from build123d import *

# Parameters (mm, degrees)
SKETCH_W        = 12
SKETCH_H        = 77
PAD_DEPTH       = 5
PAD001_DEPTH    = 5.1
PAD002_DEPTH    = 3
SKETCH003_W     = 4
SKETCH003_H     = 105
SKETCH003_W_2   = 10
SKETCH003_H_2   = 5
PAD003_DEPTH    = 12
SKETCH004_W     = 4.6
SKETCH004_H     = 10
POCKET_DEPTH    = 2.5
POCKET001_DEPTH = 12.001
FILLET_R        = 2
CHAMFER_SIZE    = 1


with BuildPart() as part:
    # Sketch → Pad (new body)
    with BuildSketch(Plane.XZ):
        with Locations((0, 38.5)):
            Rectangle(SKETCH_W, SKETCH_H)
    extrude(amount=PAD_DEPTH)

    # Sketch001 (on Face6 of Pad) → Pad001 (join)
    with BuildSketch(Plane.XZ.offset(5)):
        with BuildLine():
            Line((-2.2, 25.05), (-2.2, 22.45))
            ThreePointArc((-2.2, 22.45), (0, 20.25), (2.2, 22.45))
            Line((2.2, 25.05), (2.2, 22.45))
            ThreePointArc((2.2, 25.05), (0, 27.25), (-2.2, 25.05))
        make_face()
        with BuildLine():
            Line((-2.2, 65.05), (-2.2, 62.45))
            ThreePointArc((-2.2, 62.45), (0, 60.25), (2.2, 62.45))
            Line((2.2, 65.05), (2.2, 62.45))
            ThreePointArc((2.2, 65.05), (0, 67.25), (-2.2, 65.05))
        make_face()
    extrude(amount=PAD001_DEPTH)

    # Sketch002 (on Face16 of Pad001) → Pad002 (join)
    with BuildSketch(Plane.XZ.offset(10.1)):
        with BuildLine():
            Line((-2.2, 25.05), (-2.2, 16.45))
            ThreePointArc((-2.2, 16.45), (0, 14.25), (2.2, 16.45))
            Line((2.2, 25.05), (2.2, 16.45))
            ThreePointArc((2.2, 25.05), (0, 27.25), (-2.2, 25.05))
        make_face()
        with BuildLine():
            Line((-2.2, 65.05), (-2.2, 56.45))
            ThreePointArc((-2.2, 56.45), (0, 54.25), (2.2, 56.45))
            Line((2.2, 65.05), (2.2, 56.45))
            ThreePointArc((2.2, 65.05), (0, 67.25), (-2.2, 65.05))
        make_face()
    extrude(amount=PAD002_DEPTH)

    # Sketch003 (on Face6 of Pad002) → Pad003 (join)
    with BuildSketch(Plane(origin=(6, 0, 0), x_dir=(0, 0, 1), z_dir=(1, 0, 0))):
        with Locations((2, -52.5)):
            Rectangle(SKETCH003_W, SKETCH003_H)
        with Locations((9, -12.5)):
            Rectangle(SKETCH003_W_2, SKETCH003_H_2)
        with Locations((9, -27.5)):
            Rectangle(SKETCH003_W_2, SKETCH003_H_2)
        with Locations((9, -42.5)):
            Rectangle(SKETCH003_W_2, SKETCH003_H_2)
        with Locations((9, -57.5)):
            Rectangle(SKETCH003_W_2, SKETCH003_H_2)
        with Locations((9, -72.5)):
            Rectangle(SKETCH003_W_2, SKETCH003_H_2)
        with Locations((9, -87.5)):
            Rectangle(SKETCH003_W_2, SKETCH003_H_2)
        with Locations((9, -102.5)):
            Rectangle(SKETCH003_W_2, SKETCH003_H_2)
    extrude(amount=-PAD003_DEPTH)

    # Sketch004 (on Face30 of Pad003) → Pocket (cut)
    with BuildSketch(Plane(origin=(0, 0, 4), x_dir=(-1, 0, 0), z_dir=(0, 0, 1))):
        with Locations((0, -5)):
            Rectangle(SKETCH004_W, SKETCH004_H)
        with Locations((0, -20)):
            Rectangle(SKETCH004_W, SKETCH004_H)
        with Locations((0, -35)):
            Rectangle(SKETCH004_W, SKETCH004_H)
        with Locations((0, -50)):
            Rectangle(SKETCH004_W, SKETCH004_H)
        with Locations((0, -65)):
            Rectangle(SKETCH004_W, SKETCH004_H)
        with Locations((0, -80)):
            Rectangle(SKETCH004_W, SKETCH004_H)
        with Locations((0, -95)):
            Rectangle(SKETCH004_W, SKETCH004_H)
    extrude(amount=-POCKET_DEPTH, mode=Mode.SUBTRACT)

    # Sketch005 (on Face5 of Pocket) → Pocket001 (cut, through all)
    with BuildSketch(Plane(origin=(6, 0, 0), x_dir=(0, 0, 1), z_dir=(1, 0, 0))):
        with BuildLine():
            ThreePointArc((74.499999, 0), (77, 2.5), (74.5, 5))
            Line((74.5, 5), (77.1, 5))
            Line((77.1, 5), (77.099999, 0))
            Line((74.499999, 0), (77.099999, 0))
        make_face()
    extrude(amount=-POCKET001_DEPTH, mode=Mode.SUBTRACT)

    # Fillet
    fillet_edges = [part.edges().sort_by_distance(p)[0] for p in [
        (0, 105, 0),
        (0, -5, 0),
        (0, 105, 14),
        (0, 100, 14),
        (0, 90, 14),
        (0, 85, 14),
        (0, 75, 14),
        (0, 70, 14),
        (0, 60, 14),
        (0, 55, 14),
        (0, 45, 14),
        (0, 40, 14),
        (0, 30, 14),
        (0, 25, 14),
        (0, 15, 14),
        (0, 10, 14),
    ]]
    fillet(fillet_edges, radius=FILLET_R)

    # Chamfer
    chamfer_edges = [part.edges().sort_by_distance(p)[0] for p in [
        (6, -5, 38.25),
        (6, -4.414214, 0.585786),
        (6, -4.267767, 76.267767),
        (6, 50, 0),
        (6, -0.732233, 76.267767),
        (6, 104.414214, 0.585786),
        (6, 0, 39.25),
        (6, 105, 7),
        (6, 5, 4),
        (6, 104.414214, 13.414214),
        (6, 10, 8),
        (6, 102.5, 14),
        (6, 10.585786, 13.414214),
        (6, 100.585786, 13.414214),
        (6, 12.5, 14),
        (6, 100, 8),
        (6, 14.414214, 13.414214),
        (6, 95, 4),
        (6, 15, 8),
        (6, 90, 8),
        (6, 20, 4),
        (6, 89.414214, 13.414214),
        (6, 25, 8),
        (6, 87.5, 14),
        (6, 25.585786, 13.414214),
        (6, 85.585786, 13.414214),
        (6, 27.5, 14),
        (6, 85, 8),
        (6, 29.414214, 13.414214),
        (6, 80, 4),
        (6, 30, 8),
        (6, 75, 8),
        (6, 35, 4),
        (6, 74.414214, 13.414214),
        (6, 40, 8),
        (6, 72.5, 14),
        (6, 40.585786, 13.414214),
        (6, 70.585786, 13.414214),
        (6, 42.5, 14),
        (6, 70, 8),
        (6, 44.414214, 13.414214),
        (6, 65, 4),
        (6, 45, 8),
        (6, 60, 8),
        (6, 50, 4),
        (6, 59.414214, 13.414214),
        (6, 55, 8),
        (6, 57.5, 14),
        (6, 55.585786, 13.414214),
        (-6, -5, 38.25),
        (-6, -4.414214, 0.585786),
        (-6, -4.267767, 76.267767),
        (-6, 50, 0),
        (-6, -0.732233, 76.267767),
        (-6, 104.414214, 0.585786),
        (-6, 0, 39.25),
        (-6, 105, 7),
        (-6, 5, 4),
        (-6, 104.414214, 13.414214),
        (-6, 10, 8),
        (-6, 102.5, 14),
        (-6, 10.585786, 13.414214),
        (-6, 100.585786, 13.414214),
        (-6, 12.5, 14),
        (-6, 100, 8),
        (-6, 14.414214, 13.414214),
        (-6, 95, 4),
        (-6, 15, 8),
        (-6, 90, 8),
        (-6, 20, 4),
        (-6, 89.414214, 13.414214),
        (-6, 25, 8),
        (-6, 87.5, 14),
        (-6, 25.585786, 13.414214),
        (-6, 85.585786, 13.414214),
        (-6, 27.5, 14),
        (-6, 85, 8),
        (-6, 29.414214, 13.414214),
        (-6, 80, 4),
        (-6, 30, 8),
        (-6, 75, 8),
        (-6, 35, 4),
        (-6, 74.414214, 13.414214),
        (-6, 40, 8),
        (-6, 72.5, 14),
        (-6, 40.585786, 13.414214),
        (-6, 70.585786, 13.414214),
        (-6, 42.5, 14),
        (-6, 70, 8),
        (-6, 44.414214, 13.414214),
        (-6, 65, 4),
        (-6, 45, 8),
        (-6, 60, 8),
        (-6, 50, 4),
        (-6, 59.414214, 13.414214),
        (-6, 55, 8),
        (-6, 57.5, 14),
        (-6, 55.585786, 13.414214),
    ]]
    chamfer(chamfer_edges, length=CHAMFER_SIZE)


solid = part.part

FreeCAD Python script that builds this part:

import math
import FreeCAD as App
import Part
import Sketcher

V = App.Vector
Q = App.Units.Quantity


def edges_at(feature, points):
    """Names of the edges that pass closest to the given points."""
    edges = feature.Shape.Edges
    near = lambda p: min(range(len(edges)), key=lambda i: edges[i].distToShape(Part.Vertex(*p))[0])
    return sorted({f"Edge{near(p) + 1}" for p in points})

doc = App.newDocument("Part")
body = doc.addObject("PartDesign::Body", "Body")

# Sketch on XZ plane
sketch1 = body.newObject("Sketcher::SketchObject", "Sketch")
sketch1.AttachmentSupport = (doc.getObject("XZ_Plane"), [""])
sketch1.MapMode = "FlatFace"
sketch1.addGeometry([
    Part.LineSegment(V(-6, 77, 0), V(-6, 0, 0)),
    Part.LineSegment(V(-6, 0, 0), V(6, 0, 0)),
    Part.LineSegment(V(6, 0, 0), V(6, 77, 0)),
    Part.LineSegment(V(6, 77, 0), V(-6, 77, 0)),
], False)
sketch1.addConstraint([
    Sketcher.Constraint("Coincident", 0, 2, 1, 1),
    Sketcher.Constraint("Coincident", 1, 2, 2, 1),
    Sketcher.Constraint("Coincident", 2, 2, 3, 1),
    Sketcher.Constraint("Coincident", 3, 2, 0, 1),
    Sketcher.Constraint("Vertical", 0),
    Sketcher.Constraint("Horizontal", 1),
    Sketcher.Constraint("Vertical", 2),
    Sketcher.Constraint("Horizontal", 3),
    Sketcher.Constraint("Symmetric", 0, 2, 1, 2, -1, 1),
    Sketcher.Constraint("DistanceX", 1, 1, 1, 2, Q("12 mm")),
    Sketcher.Constraint("DistanceY", 0, 2, 0, 1, Q("77 mm")),
])
pad1 = body.newObject("PartDesign::Pad", "Pad")
pad1.Profile = sketch1
pad1.Length = 5

# Sketch on XZ plane
sketch2 = body.newObject("Sketcher::SketchObject", "Sketch001")
sketch2.AttachmentSupport = (doc.getObject("XZ_Plane"), [""])
sketch2.MapMode = "FlatFace"
sketch2.AttachmentOffset = App.Placement(V(0, 0, 5), App.Rotation())
sketch2.addGeometry([
    Part.LineSegment(V(-2.2, 25.1, 0), V(-2.2, 22.4, 0)),  # 0
    Part.ArcOfCircle(Part.Circle(V(0, 22.4, 0), V(0, 0, 1), 2.2), math.radians(180), math.radians(360)),  # 1
    Part.LineSegment(V(2.2, 22.4, 0), V(2.2, 25.1, 0)),  # 2
    Part.ArcOfCircle(Part.Circle(V(0, 25.1, 0), V(0, 0, 1), 2.2), math.radians(0), math.radians(180)),  # 3
    Part.LineSegment(V(-2.2, 65, 0), V(-2.2, 62.5, 0)),  # 4
    Part.ArcOfCircle(Part.Circle(V(0, 62.5, 0), V(0, 0, 1), 2.2), math.radians(180), math.radians(360)),  # 5
    Part.LineSegment(V(2.2, 62.5, 0), V(2.2, 65, 0)),  # 6
    Part.ArcOfCircle(Part.Circle(V(0, 65, 0), V(0, 0, 1), 2.2), math.radians(0), math.radians(180)),  # 7
], False)
sketch2.addConstraint([
    Sketcher.Constraint("Tangent", 0, 2, 1, 1),
    Sketcher.Constraint("Tangent", 1, 2, 2, 1),
    Sketcher.Constraint("Tangent", 2, 2, 3, 1),
    Sketcher.Constraint("Tangent", 3, 2, 0, 1),
    Sketcher.Constraint("Tangent", 4, 2, 5, 1),
    Sketcher.Constraint("Tangent", 5, 2, 6, 1),
    Sketcher.Constraint("Tangent", 6, 2, 7, 1),
    Sketcher.Constraint("Tangent", 7, 2, 4, 1),
    Sketcher.Constraint("Vertical", 0),
    Sketcher.Constraint("Vertical", 2),
    Sketcher.Constraint("Vertical", 4),
    Sketcher.Constraint("Vertical", 6),
    Sketcher.Constraint("Equal", 3, 5),
    Sketcher.Constraint("PointOnObject", 1, 3, -2),
    Sketcher.Constraint("PointOnObject", 5, 3, -2),
    Sketcher.Constraint("Equal", 2, 4),
    Sketcher.Constraint("Radius", 1, Q("2.2 mm")),
    Sketcher.Constraint("DistanceY", 0, 2, 0, 1, Q("2.6 mm")),
    Sketcher.Constraint("DistanceY", 1, 3, 5, 3, Q("40 mm")),
    Sketcher.Constraint("DistanceY", -1, 1, 1, 3, Q("22.45 mm")),
])
pad2 = body.newObject("PartDesign::Pad", "Pad001")
pad2.Profile = sketch2
pad2.Length = 5.1

# Sketch on XZ plane
sketch3 = body.newObject("Sketcher::SketchObject", "Sketch002")
sketch3.AttachmentSupport = (doc.getObject("XZ_Plane"), [""])
sketch3.MapMode = "FlatFace"
sketch3.AttachmentOffset = App.Placement(V(0, 0, 10.1), App.Rotation())
sketch3.addGeometry([
    Part.LineSegment(V(-2.2, 25.1, 0), V(-2.2, 16.4, 0)),  # 0
    Part.ArcOfCircle(Part.Circle(V(0, 16.4, 0), V(0, 0, 1), 2.2), math.radians(180), math.radians(360)),  # 1
    Part.LineSegment(V(2.2, 16.4, 0), V(2.2, 25.1, 0)),  # 2
    Part.ArcOfCircle(Part.Circle(V(0, 25.1, 0), V(0, 0, 1), 2.2), math.radians(0), math.radians(180)),  # 3
    Part.LineSegment(V(-2.2, 65, 0), V(-2.2, 56.5, 0)),  # 4
    Part.ArcOfCircle(Part.Circle(V(0, 56.5, 0), V(0, 0, 1), 2.2), math.radians(180), math.radians(360)),  # 5
    Part.LineSegment(V(2.2, 56.5, 0), V(2.2, 65, 0)),  # 6
    Part.ArcOfCircle(Part.Circle(V(0, 65, 0), V(0, 0, 1), 2.2), math.radians(0), math.radians(180)),  # 7
], False)
sketch3.addConstraint([
    Sketcher.Constraint("Tangent", 0, 2, 1, 1),
    Sketcher.Constraint("Tangent", 1, 2, 2, 1),
    Sketcher.Constraint("Tangent", 2, 2, 3, 1),
    Sketcher.Constraint("Tangent", 3, 2, 0, 1),
    Sketcher.Constraint("Tangent", 4, 2, 5, 1),
    Sketcher.Constraint("Tangent", 5, 2, 6, 1),
    Sketcher.Constraint("Tangent", 6, 2, 7, 1),
    Sketcher.Constraint("Tangent", 7, 2, 4, 1),
    Sketcher.Constraint("Vertical", 0),
    Sketcher.Constraint("Vertical", 2),
    Sketcher.Constraint("Vertical", 4),
    Sketcher.Constraint("Vertical", 6),
    Sketcher.Constraint("Equal", 3, 5),
    Sketcher.Constraint("PointOnObject", 1, 3, -2),
    Sketcher.Constraint("PointOnObject", 5, 3, -2),
    Sketcher.Constraint("Equal", 2, 4),
    Sketcher.Constraint("Radius", 1, Q("2.2 mm")),
    Sketcher.Constraint("DistanceY", 0, 2, 0, 1, Q("8.6 mm")),
    Sketcher.Constraint("DistanceY", 1, 3, 5, 3, Q("40 mm")),
    Sketcher.Constraint("DistanceY", -1, 1, 1, 3, Q("16.45 mm")),
])
pad3 = body.newObject("PartDesign::Pad", "Pad002")
pad3.Profile = sketch3
pad3.Length = 3

# Sketch on YZ plane
sketch4 = body.newObject("Sketcher::SketchObject", "Sketch003")
sketch4.AttachmentSupport = (doc.getObject("YZ_Plane"), [""])
sketch4.MapMode = "FlatFace"
sketch4.AttachmentOffset = App.Placement(V(0, 0, 6), App.Rotation())
sketch4.addGeometry([
    Part.LineSegment(V(0, 0, 0), V(105, 0, 0)),  # 0
    Part.LineSegment(V(105, 0, 0), V(105, 14, 0)),  # 1
    Part.LineSegment(V(105, 14, 0), V(100, 14, 0)),  # 2
    Part.LineSegment(V(100, 14, 0), V(100, 4, 0)),  # 3
    Part.LineSegment(V(100, 4, 0), V(90, 4, 0)),  # 4
    Part.LineSegment(V(90, 4, 0), V(90, 14, 0)),  # 5
    Part.LineSegment(V(90, 14, 0), V(85, 14, 0)),  # 6
    Part.LineSegment(V(85, 14, 0), V(85, 4, 0)),  # 7
    Part.LineSegment(V(85, 4, 0), V(75, 4, 0)),  # 8
    Part.LineSegment(V(75, 4, 0), V(75, 14, 0)),  # 9
    Part.LineSegment(V(75, 14, 0), V(70, 14, 0)),  # 10
    Part.LineSegment(V(70, 14, 0), V(70, 4, 0)),  # 11
    Part.LineSegment(V(70, 4, 0), V(60, 4, 0)),  # 12
    Part.LineSegment(V(60, 4, 0), V(60, 14, 0)),  # 13
    Part.LineSegment(V(60, 14, 0), V(55, 14, 0)),  # 14
    Part.LineSegment(V(55, 14, 0), V(55, 4, 0)),  # 15
    Part.LineSegment(V(55, 4, 0), V(45, 4, 0)),  # 16
    Part.LineSegment(V(45, 4, 0), V(45, 14, 0)),  # 17
    Part.LineSegment(V(45, 14, 0), V(40, 14, 0)),  # 18
    Part.LineSegment(V(40, 14, 0), V(40, 4, 0)),  # 19
    Part.LineSegment(V(40, 4, 0), V(30, 4, 0)),  # 20
    Part.LineSegment(V(30, 4, 0), V(30, 14, 0)),  # 21
    Part.LineSegment(V(30, 14, 0), V(25, 14, 0)),  # 22
    Part.LineSegment(V(25, 14, 0), V(25, 4, 0)),  # 23
    Part.LineSegment(V(25, 4, 0), V(15, 4, 0)),  # 24
    Part.LineSegment(V(15, 4, 0), V(15, 14, 0)),  # 25
    Part.LineSegment(V(15, 14, 0), V(10, 14, 0)),  # 26
    Part.LineSegment(V(10, 14, 0), V(10, 4, 0)),  # 27
    Part.LineSegment(V(10, 4, 0), V(0, 4, 0)),  # 28
    Part.LineSegment(V(0, 4, 0), V(0, 0, 0)),  # 29
], False)
sketch4.addConstraint([
    Sketcher.Constraint("Coincident", 0, 2, 1, 1),
    Sketcher.Constraint("Coincident", 1, 2, 2, 1),
    Sketcher.Constraint("Coincident", 2, 2, 3, 1),
    Sketcher.Constraint("Coincident", 3, 2, 4, 1),
    Sketcher.Constraint("Coincident", 4, 2, 5, 1),
    Sketcher.Constraint("Coincident", 5, 2, 6, 1),
    Sketcher.Constraint("Coincident", 6, 2, 7, 1),
    Sketcher.Constraint("Coincident", 7, 2, 8, 1),
    Sketcher.Constraint("Coincident", 8, 2, 9, 1),
    Sketcher.Constraint("Coincident", 9, 2, 10, 1),
    Sketcher.Constraint("Coincident", 10, 2, 11, 1),
    Sketcher.Constraint("Coincident", 11, 2, 12, 1),
    Sketcher.Constraint("Coincident", 12, 2, 13, 1),
    Sketcher.Constraint("Coincident", 13, 2, 14, 1),
    Sketcher.Constraint("Coincident", 14, 2, 15, 1),
    Sketcher.Constraint("Coincident", 15, 2, 16, 1),
    Sketcher.Constraint("Coincident", 16, 2, 17, 1),
    Sketcher.Constraint("Coincident", 17, 2, 18, 1),
    Sketcher.Constraint("Coincident", 18, 2, 19, 1),
    Sketcher.Constraint("Coincident", 19, 2, 20, 1),
    Sketcher.Constraint("Coincident", 20, 2, 21, 1),
    Sketcher.Constraint("Coincident", 21, 2, 22, 1),
    Sketcher.Constraint("Coincident", 22, 2, 23, 1),
    Sketcher.Constraint("Coincident", 23, 2, 24, 1),
    Sketcher.Constraint("Coincident", 24, 2, 25, 1),
    Sketcher.Constraint("Coincident", 25, 2, 26, 1),
    Sketcher.Constraint("Coincident", 26, 2, 27, 1),
    Sketcher.Constraint("Coincident", 27, 2, 28, 1),
    Sketcher.Constraint("Coincident", 28, 2, 29, 1),
    Sketcher.Constraint("Coincident", 29, 2, 0, 1),
    Sketcher.Constraint("Horizontal", 0),
    Sketcher.Constraint("Vertical", 1),
    Sketcher.Constraint("Horizontal", 2),
    Sketcher.Constraint("Vertical", 3),
    Sketcher.Constraint("Horizontal", 4),
    Sketcher.Constraint("Vertical", 5),
    Sketcher.Constraint("Horizontal", 6),
    Sketcher.Constraint("Vertical", 7),
    Sketcher.Constraint("Horizontal", 8),
    Sketcher.Constraint("Vertical", 9),
    Sketcher.Constraint("Horizontal", 10),
    Sketcher.Constraint("Vertical", 11),
    Sketcher.Constraint("Horizontal", 12),
    Sketcher.Constraint("Vertical", 13),
    Sketcher.Constraint("Horizontal", 14),
    Sketcher.Constraint("Vertical", 15),
    Sketcher.Constraint("Horizontal", 16),
    Sketcher.Constraint("Vertical", 17),
    Sketcher.Constraint("Horizontal", 18),
    Sketcher.Constraint("Vertical", 19),
    Sketcher.Constraint("Horizontal", 20),
    Sketcher.Constraint("Vertical", 21),
    Sketcher.Constraint("Horizontal", 22),
    Sketcher.Constraint("Vertical", 23),
    Sketcher.Constraint("Horizontal", 24),
    Sketcher.Constraint("Vertical", 25),
    Sketcher.Constraint("Horizontal", 26),
    Sketcher.Constraint("Vertical", 27),
    Sketcher.Constraint("Horizontal", 28),
    Sketcher.Constraint("Vertical", 29),
    Sketcher.Constraint("Coincident", 29, 2, -1, 1),
    Sketcher.Constraint("Horizontal", 2, 2, 5, 2),
    Sketcher.Constraint("Horizontal", 4, 2, 7, 2),
    Sketcher.Constraint("Horizontal", 6, 2, 9, 2),
    Sketcher.Constraint("Horizontal", 8, 2, 11, 2),
    Sketcher.Constraint("Horizontal", 10, 2, 13, 2),
    Sketcher.Constraint("Horizontal", 12, 2, 15, 2),
    Sketcher.Constraint("Horizontal", 14, 2, 17, 2),
    Sketcher.Constraint("Horizontal", 16, 2, 19, 2),
    Sketcher.Constraint("Horizontal", 18, 2, 21, 2),
    Sketcher.Constraint("Horizontal", 20, 2, 23, 2),
    Sketcher.Constraint("Horizontal", 22, 2, 25, 2),
    Sketcher.Constraint("Horizontal", 24, 2, 27, 2),
    Sketcher.Constraint("Equal", 2, 6),
    Sketcher.Constraint("Equal", 4, 8),
    Sketcher.Constraint("Equal", 6, 10),
    Sketcher.Constraint("Equal", 8, 12),
    Sketcher.Constraint("Equal", 10, 14),
    Sketcher.Constraint("Equal", 12, 16),
    Sketcher.Constraint("Equal", 14, 18),
    Sketcher.Constraint("Equal", 16, 20),
    Sketcher.Constraint("Equal", 18, 22),
    Sketcher.Constraint("Equal", 20, 24),
    Sketcher.Constraint("Equal", 22, 26),
    Sketcher.Constraint("Equal", 24, 28),
    Sketcher.Constraint("Equal", 28, 3),
    Sketcher.Constraint("DistanceX", 0, 1, 0, 2, Q("105 mm")),
    Sketcher.Constraint("DistanceX", 2, 2, 2, 1, Q("5 mm")),
    Sketcher.Constraint("DistanceY", 1, 1, 1, 2, Q("14 mm")),
])
pad4 = body.newObject("PartDesign::Pad", "Pad003")
pad4.Profile = sketch4
pad4.Length = 12
pad4.Reversed = True

# Sketch on XY plane
sketch5 = body.newObject("Sketcher::SketchObject", "Sketch004")
sketch5.AttachmentSupport = (doc.getObject("XY_Plane"), [""])
sketch5.MapMode = "FlatFace"
sketch5.AttachmentOffset = App.Placement(V(0, 0, 4), App.Rotation())
sketch5.addGeometry([
    Part.LineSegment(V(2.3, 0, 0), V(2.3, 10, 0)),  # 0
    Part.LineSegment(V(2.3, 10, 0), V(-2.3, 10, 0)),  # 1
    Part.LineSegment(V(-2.3, 10, 0), V(-2.3, 0, 0)),  # 2
    Part.LineSegment(V(-2.3, 0, 0), V(2.3, 0, 0)),  # 3
    Part.LineSegment(V(2.3, 15, 0), V(2.3, 25, 0)),  # 4
    Part.LineSegment(V(2.3, 25, 0), V(-2.3, 25, 0)),  # 5
    Part.LineSegment(V(-2.3, 25, 0), V(-2.3, 15, 0)),  # 6
    Part.LineSegment(V(-2.3, 15, 0), V(2.3, 15, 0)),  # 7
    Part.LineSegment(V(2.3, 30, 0), V(2.3, 40, 0)),  # 8
    Part.LineSegment(V(2.3, 40, 0), V(-2.3, 40, 0)),  # 9
    Part.LineSegment(V(-2.3, 40, 0), V(-2.3, 30, 0)),  # 10
    Part.LineSegment(V(-2.3, 30, 0), V(2.3, 30, 0)),  # 11
    Part.LineSegment(V(2.3, 45, 0), V(2.3, 55, 0)),  # 12
    Part.LineSegment(V(2.3, 55, 0), V(-2.3, 55, 0)),  # 13
    Part.LineSegment(V(-2.3, 55, 0), V(-2.3, 45, 0)),  # 14
    Part.LineSegment(V(-2.3, 45, 0), V(2.3, 45, 0)),  # 15
    Part.LineSegment(V(2.3, 60, 0), V(2.3, 70, 0)),  # 16
    Part.LineSegment(V(2.3, 70, 0), V(-2.3, 70, 0)),  # 17
    Part.LineSegment(V(-2.3, 70, 0), V(-2.3, 60, 0)),  # 18
    Part.LineSegment(V(-2.3, 60, 0), V(2.3, 60, 0)),  # 19
    Part.LineSegment(V(2.3, 75, 0), V(2.3, 85, 0)),  # 20
    Part.LineSegment(V(2.3, 85, 0), V(-2.3, 85, 0)),  # 21
    Part.LineSegment(V(-2.3, 85, 0), V(-2.3, 75, 0)),  # 22
    Part.LineSegment(V(-2.3, 75, 0), V(2.3, 75, 0)),  # 23
    Part.LineSegment(V(2.3, 90, 0), V(2.3, 100, 0)),  # 24
    Part.LineSegment(V(2.3, 100, 0), V(-2.3, 100, 0)),  # 25
    Part.LineSegment(V(-2.3, 100, 0), V(-2.3, 90, 0)),  # 26
    Part.LineSegment(V(-2.3, 90, 0), V(2.3, 90, 0)),  # 27
], False)
sketch5.addConstraint([
    Sketcher.Constraint("Coincident", 0, 2, 1, 1),
    Sketcher.Constraint("Coincident", 1, 2, 2, 1),
    Sketcher.Constraint("Coincident", 2, 2, 3, 1),
    Sketcher.Constraint("Coincident", 3, 2, 0, 1),
    Sketcher.Constraint("Coincident", 4, 2, 5, 1),
    Sketcher.Constraint("Coincident", 5, 2, 6, 1),
    Sketcher.Constraint("Coincident", 6, 2, 7, 1),
    Sketcher.Constraint("Coincident", 7, 2, 4, 1),
    Sketcher.Constraint("Coincident", 8, 2, 9, 1),
    Sketcher.Constraint("Coincident", 9, 2, 10, 1),
    Sketcher.Constraint("Coincident", 10, 2, 11, 1),
    Sketcher.Constraint("Coincident", 11, 2, 8, 1),
    Sketcher.Constraint("Coincident", 12, 2, 13, 1),
    Sketcher.Constraint("Coincident", 13, 2, 14, 1),
    Sketcher.Constraint("Coincident", 14, 2, 15, 1),
    Sketcher.Constraint("Coincident", 15, 2, 12, 1),
    Sketcher.Constraint("Coincident", 16, 2, 17, 1),
    Sketcher.Constraint("Coincident", 17, 2, 18, 1),
    Sketcher.Constraint("Coincident", 18, 2, 19, 1),
    Sketcher.Constraint("Coincident", 19, 2, 16, 1),
    Sketcher.Constraint("Coincident", 20, 2, 21, 1),
    Sketcher.Constraint("Coincident", 21, 2, 22, 1),
    Sketcher.Constraint("Coincident", 22, 2, 23, 1),
    Sketcher.Constraint("Coincident", 23, 2, 20, 1),
    Sketcher.Constraint("Coincident", 24, 2, 25, 1),
    Sketcher.Constraint("Coincident", 25, 2, 26, 1),
    Sketcher.Constraint("Coincident", 26, 2, 27, 1),
    Sketcher.Constraint("Coincident", 27, 2, 24, 1),
    Sketcher.Constraint("Vertical", 0),
    Sketcher.Constraint("Horizontal", 1),
    Sketcher.Constraint("Vertical", 2),
    Sketcher.Constraint("Horizontal", 3),
    Sketcher.Constraint("Vertical", 4),
    Sketcher.Constraint("Horizontal", 5),
    Sketcher.Constraint("Vertical", 6),
    Sketcher.Constraint("Horizontal", 7),
    Sketcher.Constraint("Vertical", 8),
    Sketcher.Constraint("Horizontal", 9),
    Sketcher.Constraint("Vertical", 10),
    Sketcher.Constraint("Horizontal", 11),
    Sketcher.Constraint("Vertical", 12),
    Sketcher.Constraint("Horizontal", 13),
    Sketcher.Constraint("Vertical", 14),
    Sketcher.Constraint("Horizontal", 15),
    Sketcher.Constraint("Vertical", 16),
    Sketcher.Constraint("Horizontal", 17),
    Sketcher.Constraint("Vertical", 18),
    Sketcher.Constraint("Horizontal", 19),
    Sketcher.Constraint("Vertical", 20),
    Sketcher.Constraint("Horizontal", 21),
    Sketcher.Constraint("Vertical", 22),
    Sketcher.Constraint("Horizontal", 23),
    Sketcher.Constraint("Vertical", 24),
    Sketcher.Constraint("Horizontal", 25),
    Sketcher.Constraint("Vertical", 26),
    Sketcher.Constraint("Horizontal", 27),
    Sketcher.Constraint("Symmetric", 2, 2, 3, 2, -1, 1),
    Sketcher.Constraint("Vertical", 3, 2, 4, 2),
    Sketcher.Constraint("Vertical", 2, 2, 5, 2),
    Sketcher.Constraint("Vertical", 7, 2, 8, 2),
    Sketcher.Constraint("Vertical", 6, 2, 9, 2),
    Sketcher.Constraint("Vertical", 11, 2, 12, 2),
    Sketcher.Constraint("Vertical", 10, 2, 13, 2),
    Sketcher.Constraint("Vertical", 15, 2, 16, 2),
    Sketcher.Constraint("Vertical", 14, 2, 17, 2),
    Sketcher.Constraint("Vertical", 19, 2, 20, 2),
    Sketcher.Constraint("Vertical", 18, 2, 21, 2),
    Sketcher.Constraint("Vertical", 23, 2, 24, 2),
    Sketcher.Constraint("Vertical", 22, 2, 25, 2),
    Sketcher.Constraint("Equal", 2, 4),
    Sketcher.Constraint("Equal", 6, 8),
    Sketcher.Constraint("Equal", 10, 12),
    Sketcher.Constraint("Equal", 14, 16),
    Sketcher.Constraint("Equal", 18, 20),
    Sketcher.Constraint("Equal", 22, 24),
    Sketcher.Constraint("DistanceY", 0, 1, 0, 2, Q("10 mm")),
    Sketcher.Constraint("DistanceX", 1, 2, 1, 1, Q("4.6 mm")),
    Sketcher.Constraint("DistanceY", -1, 1, 4, 2, Q("25 mm")),
    Sketcher.Constraint("DistanceY", -1, 1, 8, 2, Q("40 mm")),
    Sketcher.Constraint("DistanceY", -1, 1, 12, 2, Q("55 mm")),
    Sketcher.Constraint("DistanceY", -1, 1, 16, 2, Q("70 mm")),
    Sketcher.Constraint("DistanceY", -1, 1, 20, 2, Q("85 mm")),
    Sketcher.Constraint("DistanceY", -1, 1, 24, 2, Q("100 mm")),
])
pocket1 = body.newObject("PartDesign::Pocket", "Pocket")
pocket1.Profile = sketch5
pocket1.Length = 2.5

# Sketch on YZ plane
sketch6 = body.newObject("Sketcher::SketchObject", "Sketch005")
sketch6.AttachmentSupport = (doc.getObject("YZ_Plane"), [""])
sketch6.MapMode = "FlatFace"
sketch6.AttachmentOffset = App.Placement(V(0, 0, 6), App.Rotation())
sketch6.addGeometry([
    Part.ArcOfCircle(Part.Circle(V(-2.5, 74.5, 0), V(0, 0, 1), 2.5), math.radians(0), math.radians(180)),
    Part.LineSegment(V(0, 74.5, 0), V(0, 77.1, 0)),
    Part.LineSegment(V(0, 77.1, 0), V(-5, 77.1, 0)),
    Part.LineSegment(V(-5, 77.1, 0), V(-5, 74.5, 0)),
], False)
sketch6.addConstraint([
    Sketcher.Constraint("Tangent", 0, 1, 1, 1),
    Sketcher.Constraint("Coincident", 1, 2, 2, 1),
    Sketcher.Constraint("Coincident", 2, 2, 3, 1),
    Sketcher.Constraint("Tangent", 3, 2, 0, 2),
    Sketcher.Constraint("Vertical", 1),
    Sketcher.Constraint("Horizontal", 2),
    Sketcher.Constraint("Vertical", 3),
    Sketcher.Constraint("PointOnObject", 0, 1, -2),
    Sketcher.Constraint("Radius", 0, Q("2.5 mm")),
    Sketcher.Constraint("DistanceY", 1, 1, 1, 2, Q("2.6 mm")),
    Sketcher.Constraint("DistanceY", -1, 1, 0, 3, Q("74.5 mm")),
])
pocket2 = body.newObject("PartDesign::Pocket", "Pocket001")
pocket2.Profile = sketch6
pocket2.Type = "ThroughAll"
doc.recompute()

fillet = body.newObject("PartDesign::Fillet", "Fillet")
fillet.Base = (pocket2, edges_at(pocket2, [
    (0, 105, 0),
    (0, -5, 0),
    (0, 105, 14),
    (0, 100, 14),
    (0, 90, 14),
    (0, 85, 14),
    (0, 75, 14),
    (0, 70, 14),
    (0, 60, 14),
    (0, 55, 14),
    (0, 45, 14),
    (0, 40, 14),
    (0, 30, 14),
    (0, 25, 14),
    (0, 15, 14),
    (0, 10, 14),
]))
fillet.Radius = 2
doc.recompute()

chamfer = body.newObject("PartDesign::Chamfer", "Chamfer")
chamfer.Base = (fillet, edges_at(fillet, [
    (6, -5, 38.25),
    (6, -4.414, 0.586),
    (6, -2.5, 77),
    (6, 50, 0),
    (6, -2.5, 77),
    (6, 104.414, 0.586),
    (6, 0, 39.25),
    (6, 105, 7),
    (6, 5, 4),
    (6, 104.414, 13.414),
    (6, 10, 8),
    (6, 102.5, 14),
    (6, 10.586, 13.414),
    (6, 100.586, 13.414),
    (6, 12.5, 14),
    (6, 100, 8),
    (6, 14.414, 13.414),
    (6, 95, 4),
    (6, 15, 8),
    (6, 90, 8),
    (6, 20, 4),
    (6, 89.414, 13.414),
    (6, 25, 8),
    (6, 87.5, 14),
    (6, 25.586, 13.414),
    (6, 85.586, 13.414),
    (6, 27.5, 14),
    (6, 85, 8),
    (6, 29.414, 13.414),
    (6, 80, 4),
    (6, 30, 8),
    (6, 75, 8),
    (6, 35, 4),
    (6, 74.414, 13.414),
    (6, 40, 8),
    (6, 72.5, 14),
    (6, 40.586, 13.414),
    (6, 70.586, 13.414),
    (6, 42.5, 14),
    (6, 70, 8),
    (6, 44.414, 13.414),
    (6, 65, 4),
    (6, 45, 8),
    (6, 60, 8),
    (6, 50, 4),
    (6, 59.414, 13.414),
    (6, 55, 8),
    (6, 57.5, 14),
    (6, 55.586, 13.414),
    (-6, -5, 38.25),
    (-6, -4.414, 0.586),
    (-6, -2.5, 77),
    (-6, 50, 0),
    (-6, -2.5, 77),
    (-6, 104.414, 0.586),
    (-6, 0, 39.25),
    (-6, 105, 7),
    (-6, 5, 4),
    (-6, 104.414, 13.414),
    (-6, 10, 8),
    (-6, 102.5, 14),
    (-6, 10.586, 13.414),
    (-6, 100.586, 13.414),
    (-6, 12.5, 14),
    (-6, 100, 8),
    (-6, 14.414, 13.414),
    (-6, 95, 4),
    (-6, 15, 8),
    (-6, 90, 8),
    (-6, 20, 4),
    (-6, 89.414, 13.414),
    (-6, 25, 8),
    (-6, 87.5, 14),
    (-6, 25.586, 13.414),
    (-6, 85.586, 13.414),
    (-6, 27.5, 14),
    (-6, 85, 8),
    (-6, 29.414, 13.414),
    (-6, 80, 4),
    (-6, 30, 8),
    (-6, 75, 8),
    (-6, 35, 4),
    (-6, 74.414, 13.414),
    (-6, 40, 8),
    (-6, 72.5, 14),
    (-6, 40.586, 13.414),
    (-6, 70.586, 13.414),
    (-6, 42.5, 14),
    (-6, 70, 8),
    (-6, 44.414, 13.414),
    (-6, 65, 4),
    (-6, 45, 8),
    (-6, 60, 8),
    (-6, 50, 4),
    (-6, 59.414, 13.414),
    (-6, 55, 8),
    (-6, 57.5, 14),
    (-6, 55.586, 13.414),
]))
chamfer.Size = 1

doc.recompute()
